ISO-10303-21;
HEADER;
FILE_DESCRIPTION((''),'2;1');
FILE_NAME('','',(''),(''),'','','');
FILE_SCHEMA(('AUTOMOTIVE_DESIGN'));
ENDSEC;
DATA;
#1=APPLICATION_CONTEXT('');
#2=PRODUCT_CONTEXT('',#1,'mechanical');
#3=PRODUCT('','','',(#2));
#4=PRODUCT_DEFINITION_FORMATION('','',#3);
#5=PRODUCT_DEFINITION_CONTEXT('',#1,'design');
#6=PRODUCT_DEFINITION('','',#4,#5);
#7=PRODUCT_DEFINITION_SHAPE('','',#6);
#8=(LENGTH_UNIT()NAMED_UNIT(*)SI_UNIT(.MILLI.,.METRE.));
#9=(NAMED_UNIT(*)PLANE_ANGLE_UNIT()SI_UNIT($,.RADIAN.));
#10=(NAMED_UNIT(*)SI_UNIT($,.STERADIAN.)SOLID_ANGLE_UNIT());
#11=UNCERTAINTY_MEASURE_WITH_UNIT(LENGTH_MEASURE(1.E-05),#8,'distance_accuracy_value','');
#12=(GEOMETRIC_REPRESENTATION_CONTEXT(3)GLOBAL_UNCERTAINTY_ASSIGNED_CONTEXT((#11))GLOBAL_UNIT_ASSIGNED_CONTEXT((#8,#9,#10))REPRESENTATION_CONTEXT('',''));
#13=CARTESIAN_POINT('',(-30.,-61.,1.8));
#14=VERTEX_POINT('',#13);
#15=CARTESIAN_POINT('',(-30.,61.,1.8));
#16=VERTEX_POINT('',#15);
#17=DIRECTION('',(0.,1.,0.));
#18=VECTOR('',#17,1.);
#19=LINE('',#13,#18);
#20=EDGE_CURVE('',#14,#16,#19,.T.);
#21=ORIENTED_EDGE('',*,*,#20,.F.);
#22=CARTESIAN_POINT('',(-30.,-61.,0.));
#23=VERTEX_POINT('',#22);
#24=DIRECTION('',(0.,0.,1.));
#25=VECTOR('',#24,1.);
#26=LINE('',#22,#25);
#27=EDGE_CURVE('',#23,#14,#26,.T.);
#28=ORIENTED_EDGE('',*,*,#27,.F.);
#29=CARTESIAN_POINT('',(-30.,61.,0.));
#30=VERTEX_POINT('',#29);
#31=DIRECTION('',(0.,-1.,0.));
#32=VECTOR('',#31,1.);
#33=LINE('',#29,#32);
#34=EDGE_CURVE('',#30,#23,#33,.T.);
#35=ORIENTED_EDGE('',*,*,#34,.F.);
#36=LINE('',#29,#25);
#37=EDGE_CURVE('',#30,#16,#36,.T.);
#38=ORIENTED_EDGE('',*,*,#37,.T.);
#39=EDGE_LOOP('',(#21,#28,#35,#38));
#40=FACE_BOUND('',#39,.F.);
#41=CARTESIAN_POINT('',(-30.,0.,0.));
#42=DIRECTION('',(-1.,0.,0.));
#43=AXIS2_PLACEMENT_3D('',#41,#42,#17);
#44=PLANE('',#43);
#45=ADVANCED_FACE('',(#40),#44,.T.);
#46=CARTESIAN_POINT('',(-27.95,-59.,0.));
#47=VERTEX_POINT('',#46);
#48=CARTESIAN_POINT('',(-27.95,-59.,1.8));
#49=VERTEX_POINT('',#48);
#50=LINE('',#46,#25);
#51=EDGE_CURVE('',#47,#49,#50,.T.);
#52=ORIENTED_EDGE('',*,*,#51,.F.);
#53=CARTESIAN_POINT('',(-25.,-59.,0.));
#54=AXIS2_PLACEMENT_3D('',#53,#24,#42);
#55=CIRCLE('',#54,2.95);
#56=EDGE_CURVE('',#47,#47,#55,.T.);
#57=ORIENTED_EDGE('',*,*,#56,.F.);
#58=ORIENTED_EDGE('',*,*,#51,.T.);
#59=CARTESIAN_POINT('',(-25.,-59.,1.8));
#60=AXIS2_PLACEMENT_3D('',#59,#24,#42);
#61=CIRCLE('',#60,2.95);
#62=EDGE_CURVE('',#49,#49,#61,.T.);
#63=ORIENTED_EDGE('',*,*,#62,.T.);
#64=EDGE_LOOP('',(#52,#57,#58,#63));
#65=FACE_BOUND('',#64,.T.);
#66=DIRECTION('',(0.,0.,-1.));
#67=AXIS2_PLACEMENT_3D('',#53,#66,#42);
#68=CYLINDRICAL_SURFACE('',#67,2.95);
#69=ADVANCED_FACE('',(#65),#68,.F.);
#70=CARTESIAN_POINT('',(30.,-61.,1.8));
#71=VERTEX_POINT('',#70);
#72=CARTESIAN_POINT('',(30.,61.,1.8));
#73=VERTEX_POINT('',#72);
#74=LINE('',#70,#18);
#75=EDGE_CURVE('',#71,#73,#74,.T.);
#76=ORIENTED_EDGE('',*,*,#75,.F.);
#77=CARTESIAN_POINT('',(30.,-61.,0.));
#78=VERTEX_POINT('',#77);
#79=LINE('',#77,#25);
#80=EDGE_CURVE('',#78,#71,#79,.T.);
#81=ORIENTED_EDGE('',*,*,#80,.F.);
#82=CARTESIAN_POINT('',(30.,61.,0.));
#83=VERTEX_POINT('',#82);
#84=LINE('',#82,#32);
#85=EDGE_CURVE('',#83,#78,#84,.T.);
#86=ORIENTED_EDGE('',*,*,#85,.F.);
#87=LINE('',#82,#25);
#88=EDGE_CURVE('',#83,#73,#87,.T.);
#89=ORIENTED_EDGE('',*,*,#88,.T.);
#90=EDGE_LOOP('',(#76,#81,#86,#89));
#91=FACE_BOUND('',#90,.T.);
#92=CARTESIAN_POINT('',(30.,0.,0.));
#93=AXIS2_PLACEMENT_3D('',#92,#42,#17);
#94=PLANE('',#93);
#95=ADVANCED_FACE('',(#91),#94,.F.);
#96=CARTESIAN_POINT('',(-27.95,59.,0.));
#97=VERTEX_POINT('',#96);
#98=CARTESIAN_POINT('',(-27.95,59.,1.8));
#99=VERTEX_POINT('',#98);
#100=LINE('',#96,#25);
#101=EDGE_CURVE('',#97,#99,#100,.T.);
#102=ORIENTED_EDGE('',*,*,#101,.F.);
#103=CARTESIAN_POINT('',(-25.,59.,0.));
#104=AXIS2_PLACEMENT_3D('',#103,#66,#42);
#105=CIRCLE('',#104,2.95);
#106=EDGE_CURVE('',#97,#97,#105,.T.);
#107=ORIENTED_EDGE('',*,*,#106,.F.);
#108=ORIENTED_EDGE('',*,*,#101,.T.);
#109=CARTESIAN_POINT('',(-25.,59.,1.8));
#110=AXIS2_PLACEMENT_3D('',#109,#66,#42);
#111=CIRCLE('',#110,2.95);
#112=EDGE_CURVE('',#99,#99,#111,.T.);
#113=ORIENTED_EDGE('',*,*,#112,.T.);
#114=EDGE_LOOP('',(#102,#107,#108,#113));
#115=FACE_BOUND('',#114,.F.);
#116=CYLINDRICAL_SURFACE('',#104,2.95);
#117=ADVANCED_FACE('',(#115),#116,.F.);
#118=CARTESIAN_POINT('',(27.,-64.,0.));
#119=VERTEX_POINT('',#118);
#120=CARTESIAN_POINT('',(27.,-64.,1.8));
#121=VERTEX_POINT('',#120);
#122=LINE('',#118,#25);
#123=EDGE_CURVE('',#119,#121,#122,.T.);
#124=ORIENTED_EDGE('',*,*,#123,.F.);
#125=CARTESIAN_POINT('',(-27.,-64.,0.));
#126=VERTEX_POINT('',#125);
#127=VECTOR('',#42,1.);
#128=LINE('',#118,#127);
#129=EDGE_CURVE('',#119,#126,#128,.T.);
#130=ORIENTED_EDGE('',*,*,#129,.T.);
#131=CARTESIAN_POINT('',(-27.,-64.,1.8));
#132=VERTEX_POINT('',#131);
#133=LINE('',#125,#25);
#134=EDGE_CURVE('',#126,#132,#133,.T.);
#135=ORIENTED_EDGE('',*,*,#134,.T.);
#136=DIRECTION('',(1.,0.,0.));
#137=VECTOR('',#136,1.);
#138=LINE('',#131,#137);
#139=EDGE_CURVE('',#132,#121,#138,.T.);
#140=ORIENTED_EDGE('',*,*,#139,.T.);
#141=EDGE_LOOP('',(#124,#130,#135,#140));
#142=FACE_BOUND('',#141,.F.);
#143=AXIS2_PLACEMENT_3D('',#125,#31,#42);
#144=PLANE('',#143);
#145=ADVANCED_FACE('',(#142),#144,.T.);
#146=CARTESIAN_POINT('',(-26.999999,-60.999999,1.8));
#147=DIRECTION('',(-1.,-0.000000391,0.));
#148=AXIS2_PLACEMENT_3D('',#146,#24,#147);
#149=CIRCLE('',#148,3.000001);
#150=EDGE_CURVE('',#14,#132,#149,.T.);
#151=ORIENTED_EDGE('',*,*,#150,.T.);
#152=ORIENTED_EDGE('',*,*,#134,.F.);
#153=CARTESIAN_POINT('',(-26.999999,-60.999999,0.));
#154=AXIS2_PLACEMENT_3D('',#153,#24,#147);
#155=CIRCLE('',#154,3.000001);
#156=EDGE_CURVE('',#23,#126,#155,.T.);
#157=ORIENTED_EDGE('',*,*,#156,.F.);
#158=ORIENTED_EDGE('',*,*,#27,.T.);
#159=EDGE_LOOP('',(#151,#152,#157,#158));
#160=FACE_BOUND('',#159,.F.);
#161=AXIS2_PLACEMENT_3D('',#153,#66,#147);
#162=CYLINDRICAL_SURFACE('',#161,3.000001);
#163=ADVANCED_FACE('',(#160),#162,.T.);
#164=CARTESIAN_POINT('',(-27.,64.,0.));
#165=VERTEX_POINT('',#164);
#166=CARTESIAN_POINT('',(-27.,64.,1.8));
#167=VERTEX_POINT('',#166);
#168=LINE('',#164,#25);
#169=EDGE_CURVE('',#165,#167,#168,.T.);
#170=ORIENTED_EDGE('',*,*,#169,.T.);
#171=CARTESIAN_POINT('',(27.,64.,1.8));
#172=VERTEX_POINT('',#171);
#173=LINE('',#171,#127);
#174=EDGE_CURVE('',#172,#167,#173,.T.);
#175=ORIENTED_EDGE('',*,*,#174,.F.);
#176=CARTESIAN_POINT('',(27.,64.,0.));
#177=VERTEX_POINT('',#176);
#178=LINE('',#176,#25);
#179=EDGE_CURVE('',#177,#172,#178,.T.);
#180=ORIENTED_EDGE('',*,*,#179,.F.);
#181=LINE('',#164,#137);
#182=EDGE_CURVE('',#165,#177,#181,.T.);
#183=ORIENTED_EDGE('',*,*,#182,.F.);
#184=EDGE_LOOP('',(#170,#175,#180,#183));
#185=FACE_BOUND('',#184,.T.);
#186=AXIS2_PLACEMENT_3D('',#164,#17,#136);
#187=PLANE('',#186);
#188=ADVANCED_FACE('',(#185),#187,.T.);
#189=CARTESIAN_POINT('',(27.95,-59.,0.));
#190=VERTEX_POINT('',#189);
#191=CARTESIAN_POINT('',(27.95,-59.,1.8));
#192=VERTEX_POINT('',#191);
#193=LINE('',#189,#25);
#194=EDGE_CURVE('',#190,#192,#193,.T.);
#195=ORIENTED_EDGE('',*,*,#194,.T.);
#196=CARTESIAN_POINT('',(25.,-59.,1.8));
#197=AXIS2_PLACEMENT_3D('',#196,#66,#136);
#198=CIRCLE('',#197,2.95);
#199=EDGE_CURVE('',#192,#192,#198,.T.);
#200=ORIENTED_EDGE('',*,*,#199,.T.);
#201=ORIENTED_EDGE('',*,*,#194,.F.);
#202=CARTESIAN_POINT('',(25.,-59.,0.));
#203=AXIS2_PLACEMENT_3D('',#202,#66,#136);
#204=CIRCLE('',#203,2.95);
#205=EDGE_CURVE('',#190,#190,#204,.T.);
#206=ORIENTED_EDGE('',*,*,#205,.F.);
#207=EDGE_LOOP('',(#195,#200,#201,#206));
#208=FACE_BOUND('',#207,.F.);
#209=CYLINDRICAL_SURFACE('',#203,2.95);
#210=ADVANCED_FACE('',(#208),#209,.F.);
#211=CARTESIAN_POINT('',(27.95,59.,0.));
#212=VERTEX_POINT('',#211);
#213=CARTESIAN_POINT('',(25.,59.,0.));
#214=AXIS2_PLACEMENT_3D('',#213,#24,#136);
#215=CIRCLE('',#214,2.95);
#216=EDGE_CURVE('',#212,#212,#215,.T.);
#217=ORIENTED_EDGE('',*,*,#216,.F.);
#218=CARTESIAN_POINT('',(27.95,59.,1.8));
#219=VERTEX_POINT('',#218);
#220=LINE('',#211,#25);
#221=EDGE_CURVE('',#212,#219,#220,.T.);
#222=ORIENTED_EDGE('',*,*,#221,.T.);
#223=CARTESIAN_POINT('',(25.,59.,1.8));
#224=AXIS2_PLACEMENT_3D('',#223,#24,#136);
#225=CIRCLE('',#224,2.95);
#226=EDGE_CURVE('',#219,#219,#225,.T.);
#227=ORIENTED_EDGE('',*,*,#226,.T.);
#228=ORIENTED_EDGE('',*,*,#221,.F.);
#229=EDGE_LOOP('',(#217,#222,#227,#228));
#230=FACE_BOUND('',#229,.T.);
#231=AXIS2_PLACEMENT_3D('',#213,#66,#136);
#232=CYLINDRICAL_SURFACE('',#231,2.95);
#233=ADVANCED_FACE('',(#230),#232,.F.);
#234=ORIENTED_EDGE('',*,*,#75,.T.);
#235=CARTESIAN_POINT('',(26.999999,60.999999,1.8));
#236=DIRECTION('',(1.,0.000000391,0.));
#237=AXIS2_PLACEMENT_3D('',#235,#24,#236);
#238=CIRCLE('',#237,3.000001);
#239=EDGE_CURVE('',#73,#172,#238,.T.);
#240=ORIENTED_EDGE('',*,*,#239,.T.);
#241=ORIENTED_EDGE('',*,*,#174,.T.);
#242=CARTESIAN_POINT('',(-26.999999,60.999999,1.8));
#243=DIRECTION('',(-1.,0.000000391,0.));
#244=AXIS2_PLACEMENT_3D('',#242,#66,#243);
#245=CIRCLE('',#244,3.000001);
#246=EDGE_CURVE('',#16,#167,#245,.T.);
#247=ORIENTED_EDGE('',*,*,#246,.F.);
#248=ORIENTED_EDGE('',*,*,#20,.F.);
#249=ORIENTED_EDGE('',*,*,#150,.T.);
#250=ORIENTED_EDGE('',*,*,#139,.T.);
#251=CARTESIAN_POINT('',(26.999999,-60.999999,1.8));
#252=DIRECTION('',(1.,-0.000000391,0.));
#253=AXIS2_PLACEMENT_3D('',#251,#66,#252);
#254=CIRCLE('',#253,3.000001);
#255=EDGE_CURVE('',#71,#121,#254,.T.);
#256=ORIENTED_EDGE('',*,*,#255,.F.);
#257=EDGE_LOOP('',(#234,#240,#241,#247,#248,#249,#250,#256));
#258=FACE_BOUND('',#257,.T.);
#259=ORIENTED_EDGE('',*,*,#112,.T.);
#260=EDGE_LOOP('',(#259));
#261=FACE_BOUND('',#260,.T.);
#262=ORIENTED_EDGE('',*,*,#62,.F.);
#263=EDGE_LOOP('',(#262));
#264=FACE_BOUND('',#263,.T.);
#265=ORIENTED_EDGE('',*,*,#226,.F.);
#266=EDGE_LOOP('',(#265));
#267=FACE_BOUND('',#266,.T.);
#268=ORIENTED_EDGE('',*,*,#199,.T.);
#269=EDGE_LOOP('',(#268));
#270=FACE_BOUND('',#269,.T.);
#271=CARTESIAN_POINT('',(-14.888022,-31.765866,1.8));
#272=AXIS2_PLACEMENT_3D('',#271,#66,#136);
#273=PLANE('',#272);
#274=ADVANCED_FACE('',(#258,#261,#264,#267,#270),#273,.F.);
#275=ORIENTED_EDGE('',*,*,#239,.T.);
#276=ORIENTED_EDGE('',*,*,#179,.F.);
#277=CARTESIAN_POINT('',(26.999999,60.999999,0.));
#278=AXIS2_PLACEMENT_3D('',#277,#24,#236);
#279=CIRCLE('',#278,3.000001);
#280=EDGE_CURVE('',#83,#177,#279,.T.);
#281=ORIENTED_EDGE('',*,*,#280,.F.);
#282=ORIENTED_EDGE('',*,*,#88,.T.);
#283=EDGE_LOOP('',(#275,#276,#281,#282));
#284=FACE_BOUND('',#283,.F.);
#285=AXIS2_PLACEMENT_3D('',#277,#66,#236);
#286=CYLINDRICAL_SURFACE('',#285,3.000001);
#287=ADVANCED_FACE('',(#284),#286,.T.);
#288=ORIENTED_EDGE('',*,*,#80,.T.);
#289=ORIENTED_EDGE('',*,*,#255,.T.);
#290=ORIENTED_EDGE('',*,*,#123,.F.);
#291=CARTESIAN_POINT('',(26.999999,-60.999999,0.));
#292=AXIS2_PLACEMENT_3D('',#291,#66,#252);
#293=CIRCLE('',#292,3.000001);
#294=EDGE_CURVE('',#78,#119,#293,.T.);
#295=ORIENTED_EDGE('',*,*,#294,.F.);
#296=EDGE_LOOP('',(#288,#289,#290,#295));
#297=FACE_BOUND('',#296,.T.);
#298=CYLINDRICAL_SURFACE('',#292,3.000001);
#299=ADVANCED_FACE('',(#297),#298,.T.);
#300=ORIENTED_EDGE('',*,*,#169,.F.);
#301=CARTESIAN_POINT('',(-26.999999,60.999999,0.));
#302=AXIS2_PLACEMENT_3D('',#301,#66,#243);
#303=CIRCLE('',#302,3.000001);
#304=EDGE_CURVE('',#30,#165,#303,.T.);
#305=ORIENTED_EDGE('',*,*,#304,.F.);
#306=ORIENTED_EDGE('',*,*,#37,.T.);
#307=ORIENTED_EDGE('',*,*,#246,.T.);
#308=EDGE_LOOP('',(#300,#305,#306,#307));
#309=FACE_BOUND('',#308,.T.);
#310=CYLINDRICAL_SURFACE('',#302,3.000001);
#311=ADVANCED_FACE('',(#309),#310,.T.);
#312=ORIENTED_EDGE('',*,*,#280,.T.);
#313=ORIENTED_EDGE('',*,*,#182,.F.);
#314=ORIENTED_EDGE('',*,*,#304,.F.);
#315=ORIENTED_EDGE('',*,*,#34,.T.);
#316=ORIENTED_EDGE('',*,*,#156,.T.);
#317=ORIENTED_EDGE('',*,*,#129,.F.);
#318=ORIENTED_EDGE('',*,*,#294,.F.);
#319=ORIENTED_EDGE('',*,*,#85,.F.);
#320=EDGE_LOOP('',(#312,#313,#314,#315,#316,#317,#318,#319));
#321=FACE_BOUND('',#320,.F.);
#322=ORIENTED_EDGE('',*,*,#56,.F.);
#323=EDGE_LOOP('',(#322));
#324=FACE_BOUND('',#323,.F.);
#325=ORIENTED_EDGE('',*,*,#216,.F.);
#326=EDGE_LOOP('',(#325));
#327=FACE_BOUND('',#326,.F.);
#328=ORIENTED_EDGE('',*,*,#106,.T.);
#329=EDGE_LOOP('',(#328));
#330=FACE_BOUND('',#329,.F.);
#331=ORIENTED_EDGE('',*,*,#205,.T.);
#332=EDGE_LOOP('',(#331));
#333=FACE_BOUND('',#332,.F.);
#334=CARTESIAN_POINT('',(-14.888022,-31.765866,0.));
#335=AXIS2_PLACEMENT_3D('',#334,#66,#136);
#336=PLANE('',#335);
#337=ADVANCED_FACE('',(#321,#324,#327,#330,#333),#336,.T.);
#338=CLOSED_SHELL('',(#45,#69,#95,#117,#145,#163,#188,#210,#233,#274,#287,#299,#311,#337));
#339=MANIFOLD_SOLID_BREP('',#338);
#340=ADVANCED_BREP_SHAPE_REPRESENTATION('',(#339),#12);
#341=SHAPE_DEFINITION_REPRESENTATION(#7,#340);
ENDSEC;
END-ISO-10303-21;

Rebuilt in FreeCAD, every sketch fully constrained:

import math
import FreeCAD as App
import Part
import Sketcher

V = App.Vector
Q = App.Units.Quantity

doc = App.newDocument("Part")
body = doc.addObject("PartDesign::Body", "Body")

sketch1 = body.newObject("Sketcher::SketchObject", "Sketch")
sketch1.AttachmentSupport = (doc.getObject("XY_Plane"), [""])
sketch1.MapMode = "FlatFace"
sketch1.addGeometry(Part.LineSegment(V(0, 0, 0), V(30, 0, 0)), False)
sketch1.addGeometry(Part.LineSegment(V(30, 0, 0), V(30, 61, 0)), False)
sketch1.addGeometry(Part.ArcOfCircle(Part.Circle(V(26.999999, 60.999999, 0), V(0, 0, 1), 3.000001), math.radians(0.000022), math.radians(89.999978)), False)
sketch1.addGeometry(Part.LineSegment(V(27, 64, 0), V(0, 64, 0)), False)
sketch1.addGeometry(Part.LineSegment(V(0, 64, 0), V(0, 0, 0)), False)
sketch1.addGeometry(Part.Circle(V(25, 59, 0), V(0, 0, 1), 2.95), False)
sketch1.addConstraint(Sketcher.Constraint("Coincident", 0, 2, 1, 1))
sketch1.addConstraint(Sketcher.Constraint("Tangent", 1, 2, 2, 1))
sketch1.addConstraint(Sketcher.Constraint("Tangent", 2, 2, 3, 1))
sketch1.addConstraint(Sketcher.Constraint("Coincident", 3, 2, 4, 1))
sketch1.addConstraint(Sketcher.Constraint("Coincident", 4, 2, 0, 1))
sketch1.addConstraint(Sketcher.Constraint("Horizontal", 0))
sketch1.addConstraint(Sketcher.Constraint("Vertical", 1))
sketch1.addConstraint(Sketcher.Constraint("Horizontal", 3))
sketch1.addConstraint(Sketcher.Constraint("Vertical", 4))
sketch1.addConstraint(Sketcher.Constraint("Coincident", 4, 2, -1, 1))
sketch1.addConstraint(Sketcher.Constraint("Radius", 2, Q("3.000001 mm")))
sketch1.addConstraint(Sketcher.Constraint("Diameter", 5, Q("5.9 mm")))
sketch1.addConstraint(Sketcher.Constraint("DistanceX", 0, 1, 0, 2, Q("30 mm")))
sketch1.addConstraint(Sketcher.Constraint("DistanceY", 1, 1, 1, 2, Q("61 mm")))
sketch1.addConstraint(Sketcher.Constraint("DistanceX", -1, 1, 5, 3, Q("25 mm")))
sketch1.addConstraint(Sketcher.Constraint("DistanceY", -1, 1, 5, 3, Q("59 mm")))
pad1 = body.newObject("PartDesign::Pad", "Pad")
pad1.Profile = sketch1
pad1.Length = 1.8

sketch2 = body.newObject("Sketcher::SketchObject", "Sketch001")
sketch2.AttachmentSupport = (doc.getObject("XY_Plane"), [""])
sketch2.MapMode = "FlatFace"
sketch2.addGeometry(Part.LineSegment(V(0, 0, 0), V(-30, 0, 0)), False)
sketch2.addGeometry(Part.LineSegment(V(-30, 0, 0), V(-30, 61, 0)), False)
sketch2.addGeometry(Part.ArcOfCircle(Part.Circle(V(-26.999999, 60.999999, 0), V(0, 0, 1), 3.000001), math.radians(90.000022), math.radians(179.999978)), False)
sketch2.addGeometry(Part.LineSegment(V(-27, 64, 0), V(0, 64, 0)), False)
sketch2.addGeometry(Part.LineSegment(V(0, 64, 0), V(0, 0, 0)), False)
sketch2.addGeometry(Part.Circle(V(-25, 59, 0), V(0, 0, 1), 2.95), False)
sketch2.addConstraint(Sketcher.Constraint("Coincident", 0, 2, 1, 1))
sketch2.addConstraint(Sketcher.Constraint("Tangent", 1, 2, 2, 2))
sketch2.addConstraint(Sketcher.Constraint("Tangent", 2, 1, 3, 1))
sketch2.addConstraint(Sketcher.Constraint("Coincident", 3, 2, 4, 1))
sketch2.addConstraint(Sketcher.Constraint("Coincident", 4, 2, 0, 1))
sketch2.addConstraint(Sketcher.Constraint("Horizontal", 0))
sketch2.addConstraint(Sketcher.Constraint("Vertical", 1))
sketch2.addConstraint(Sketcher.Constraint("Horizontal", 3))
sketch2.addConstraint(Sketcher.Constraint("Vertical", 4))
sketch2.addConstraint(Sketcher.Constraint("Coincident", 4, 2, -1, 1))
sketch2.addConstraint(Sketcher.Constraint("Radius", 2, Q("3.000001 mm")))
sketch2.addConstraint(Sketcher.Constraint("Diameter", 5, Q("5.9 mm")))
sketch2.addConstraint(Sketcher.Constraint("DistanceX", 0, 2, 0, 1, Q("30 mm")))
sketch2.addConstraint(Sketcher.Constraint("DistanceY", 1, 1, 1, 2, Q("61 mm")))
sketch2.addConstraint(Sketcher.Constraint("DistanceX", 5, 3, -1, 1, Q("25 mm")))
sketch2.addConstraint(Sketcher.Constraint("DistanceY", -1, 1, 5, 3, Q("59 mm")))
pad2 = body.newObject("PartDesign::Pad", "Pad001")
pad2.Profile = sketch2
pad2.Length = 1.8
doc.recompute()

mirrored = body.newObject("PartDesign::Mirrored", "Mirrored")
mirrored.Originals = [pad1, pad2]
mirrored.MirrorPlane = (doc.getObject("XZ_Plane"), [""])
body.Tip = mirrored

doc.recompute()
